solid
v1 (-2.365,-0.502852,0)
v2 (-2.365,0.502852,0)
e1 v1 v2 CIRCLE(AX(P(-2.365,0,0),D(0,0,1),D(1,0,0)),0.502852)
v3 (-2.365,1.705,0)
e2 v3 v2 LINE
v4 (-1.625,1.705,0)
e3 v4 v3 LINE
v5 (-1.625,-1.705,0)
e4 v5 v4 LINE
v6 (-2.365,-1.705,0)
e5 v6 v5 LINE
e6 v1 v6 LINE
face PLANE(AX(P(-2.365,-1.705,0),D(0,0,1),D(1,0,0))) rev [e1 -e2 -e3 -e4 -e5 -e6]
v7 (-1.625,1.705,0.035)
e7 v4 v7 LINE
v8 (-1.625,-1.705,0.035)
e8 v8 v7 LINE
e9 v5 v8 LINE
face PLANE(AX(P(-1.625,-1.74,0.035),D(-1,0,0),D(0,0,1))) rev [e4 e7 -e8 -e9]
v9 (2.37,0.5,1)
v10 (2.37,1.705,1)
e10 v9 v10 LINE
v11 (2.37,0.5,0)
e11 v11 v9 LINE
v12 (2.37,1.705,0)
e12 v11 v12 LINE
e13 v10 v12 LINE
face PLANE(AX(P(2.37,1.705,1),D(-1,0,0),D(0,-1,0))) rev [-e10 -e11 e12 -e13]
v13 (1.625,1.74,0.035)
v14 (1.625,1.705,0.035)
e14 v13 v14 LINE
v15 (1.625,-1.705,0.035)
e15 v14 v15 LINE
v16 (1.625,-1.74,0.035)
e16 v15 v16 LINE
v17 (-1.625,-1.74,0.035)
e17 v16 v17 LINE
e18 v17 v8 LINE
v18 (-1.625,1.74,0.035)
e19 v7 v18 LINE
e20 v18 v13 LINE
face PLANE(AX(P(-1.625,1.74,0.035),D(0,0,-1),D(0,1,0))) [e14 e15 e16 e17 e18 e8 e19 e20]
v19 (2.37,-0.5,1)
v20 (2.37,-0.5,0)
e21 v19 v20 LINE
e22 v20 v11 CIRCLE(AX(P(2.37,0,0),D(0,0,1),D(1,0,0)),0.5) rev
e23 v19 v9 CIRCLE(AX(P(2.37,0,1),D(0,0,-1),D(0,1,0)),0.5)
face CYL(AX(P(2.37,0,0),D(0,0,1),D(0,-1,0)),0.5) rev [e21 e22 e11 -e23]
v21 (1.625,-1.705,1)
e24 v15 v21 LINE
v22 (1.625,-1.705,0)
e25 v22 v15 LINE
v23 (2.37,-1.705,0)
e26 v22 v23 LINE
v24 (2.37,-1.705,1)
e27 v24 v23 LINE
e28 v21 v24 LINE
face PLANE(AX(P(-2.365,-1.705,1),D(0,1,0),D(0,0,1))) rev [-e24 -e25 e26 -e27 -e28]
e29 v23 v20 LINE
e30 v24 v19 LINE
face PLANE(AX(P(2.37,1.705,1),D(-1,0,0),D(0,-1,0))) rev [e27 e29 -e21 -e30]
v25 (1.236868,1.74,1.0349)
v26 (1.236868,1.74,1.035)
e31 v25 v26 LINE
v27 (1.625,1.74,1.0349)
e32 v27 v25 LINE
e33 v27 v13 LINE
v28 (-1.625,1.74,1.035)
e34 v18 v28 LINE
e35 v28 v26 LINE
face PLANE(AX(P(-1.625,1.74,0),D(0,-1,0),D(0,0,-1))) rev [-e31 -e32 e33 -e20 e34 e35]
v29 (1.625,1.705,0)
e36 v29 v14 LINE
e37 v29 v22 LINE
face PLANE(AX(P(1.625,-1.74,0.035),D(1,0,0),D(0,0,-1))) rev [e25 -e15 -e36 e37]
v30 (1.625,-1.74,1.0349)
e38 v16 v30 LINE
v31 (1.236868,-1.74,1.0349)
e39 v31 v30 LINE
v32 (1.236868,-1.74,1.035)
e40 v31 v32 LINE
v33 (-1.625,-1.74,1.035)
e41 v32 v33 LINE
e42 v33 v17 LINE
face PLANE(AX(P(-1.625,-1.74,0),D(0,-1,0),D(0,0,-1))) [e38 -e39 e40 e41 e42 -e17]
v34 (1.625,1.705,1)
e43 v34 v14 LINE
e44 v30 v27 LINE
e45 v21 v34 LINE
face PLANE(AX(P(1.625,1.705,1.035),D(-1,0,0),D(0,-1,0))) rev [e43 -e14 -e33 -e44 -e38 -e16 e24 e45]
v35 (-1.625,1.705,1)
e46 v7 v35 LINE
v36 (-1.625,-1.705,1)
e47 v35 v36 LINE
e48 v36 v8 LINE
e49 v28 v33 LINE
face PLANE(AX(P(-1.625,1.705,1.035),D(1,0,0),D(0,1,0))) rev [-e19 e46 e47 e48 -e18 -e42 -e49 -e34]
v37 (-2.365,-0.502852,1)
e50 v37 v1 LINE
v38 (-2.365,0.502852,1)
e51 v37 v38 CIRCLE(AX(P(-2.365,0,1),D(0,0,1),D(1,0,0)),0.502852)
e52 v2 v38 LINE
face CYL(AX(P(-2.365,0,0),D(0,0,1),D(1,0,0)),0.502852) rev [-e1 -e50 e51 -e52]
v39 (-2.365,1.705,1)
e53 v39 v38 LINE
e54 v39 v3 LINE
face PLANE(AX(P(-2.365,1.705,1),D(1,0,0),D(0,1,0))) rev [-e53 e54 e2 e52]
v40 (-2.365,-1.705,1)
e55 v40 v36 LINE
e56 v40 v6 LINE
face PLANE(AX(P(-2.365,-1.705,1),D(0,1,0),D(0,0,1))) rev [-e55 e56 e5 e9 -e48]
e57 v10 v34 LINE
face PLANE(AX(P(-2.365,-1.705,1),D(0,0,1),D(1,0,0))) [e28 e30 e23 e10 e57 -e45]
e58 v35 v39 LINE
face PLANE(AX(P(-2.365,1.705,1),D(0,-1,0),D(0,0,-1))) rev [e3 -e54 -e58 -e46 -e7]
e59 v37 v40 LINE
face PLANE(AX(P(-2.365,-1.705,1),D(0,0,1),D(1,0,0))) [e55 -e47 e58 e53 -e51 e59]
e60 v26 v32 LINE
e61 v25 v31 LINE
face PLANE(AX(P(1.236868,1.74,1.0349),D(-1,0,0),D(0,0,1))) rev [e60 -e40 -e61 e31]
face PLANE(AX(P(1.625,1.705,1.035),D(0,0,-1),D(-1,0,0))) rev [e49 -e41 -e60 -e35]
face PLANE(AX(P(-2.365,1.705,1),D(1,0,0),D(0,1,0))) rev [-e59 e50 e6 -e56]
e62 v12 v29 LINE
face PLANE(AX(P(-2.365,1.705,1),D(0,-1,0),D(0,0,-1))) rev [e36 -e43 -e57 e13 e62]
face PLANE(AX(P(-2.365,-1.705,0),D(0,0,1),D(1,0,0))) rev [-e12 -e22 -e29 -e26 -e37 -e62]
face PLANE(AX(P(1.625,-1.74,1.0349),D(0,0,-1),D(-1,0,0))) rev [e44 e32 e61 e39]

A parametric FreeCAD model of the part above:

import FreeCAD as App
import Part
import Sketcher
Q = App.Units.Quantity


def add_polygon(sketch, points):
    """Adds a closed chain of lines whose ends are joined by coincident constraints."""
    first, n = sketch.GeometryCount, len(points)
    for a, b in zip(points, points[1:] + points[:1]):
        sketch.addGeometry(Part.LineSegment(App.Vector(*a, 0), App.Vector(*b, 0)), False)
    for i in range(n):
        sketch.addConstraint(Sketcher.Constraint("Coincident", first + i, 2, first + (i + 1) % n, 1))

doc = App.newDocument("Part")
body = doc.addObject("PartDesign::Body", "Body")

# Sketch on XY plane
sketch1 = doc.addObject("Sketcher::SketchObject", "Sketch")
body.addObject(sketch1)
sketch1.AttachmentSupport = (doc.XY_Plane, [""])
sketch1.MapMode = "FlatFace"
add_polygon(sketch1, [(-2.365, 1.705), (-2.365, -1.705), (2.37, -1.705), (2.37, 1.705)])  # lines 0-3
sketch1.addConstraint(Sketcher.Constraint("Vertical", 0))
sketch1.addConstraint(Sketcher.Constraint("Horizontal", 1))
sketch1.addConstraint(Sketcher.Constraint("Vertical", 2))
sketch1.addConstraint(Sketcher.Constraint("Horizontal", 3))
sketch1.addConstraint(Sketcher.Constraint("DistanceY", 0, 2, 0, 1, Q("3.41 mm")))
sketch1.addConstraint(Sketcher.Constraint("DistanceX", 1, 1, 1, 2, Q("4.735 mm")))
sketch1.addConstraint(Sketcher.Constraint("DistanceX", -1, 1, 1, 2, Q("2.37 mm")))
sketch1.addConstraint(Sketcher.Constraint("DistanceY", 0, 2, -1, 1, Q("1.705 mm")))
pad1 = doc.addObject("PartDesign::Pad", "Pad")
body.addObject(pad1)
pad1.Profile = sketch1
pad1.Length = 1

# Sketch on XY plane
sketch2 = doc.addObject("Sketcher::SketchObject", "Sketch001")
body.addObject(sketch2)
sketch2.AttachmentSupport = (doc.XY_Plane, [""])
sketch2.MapMode = "FlatFace"
sketch2.AttachmentOffset = App.Placement(App.Vector(0, 0, 1), App.Rotation())
sketch2.addGeometry(Part.Circle(App.Vector(2.37, 0, 0), App.Vector(0, 0, 1), 0.5), False)
sketch2.addConstraint(Sketcher.Constraint("PointOnObject", 0, 3, -1))
sketch2.addConstraint(Sketcher.Constraint("Diameter", 0, Q("1 mm")))
sketch2.addConstraint(Sketcher.Constraint("DistanceX", -1, 1, 0, 3, Q("2.37 mm")))
pocket1 = doc.addObject("PartDesign::Pocket", "Pocket")
body.addObject(pocket1)
pocket1.Profile = sketch2
pocket1.Length = 1

# Sketch on XY plane
sketch3 = doc.addObject("Sketcher::SketchObject", "Sketch002")
body.addObject(sketch3)
sketch3.AttachmentSupport = (doc.XY_Plane, [""])
sketch3.MapMode = "FlatFace"
sketch3.AttachmentOffset = App.Placement(App.Vector(0, 0, 1), App.Rotation())
sketch3.addGeometry(Part.Circle(App.Vector(-2.365, 0, 0), App.Vector(0, 0, 1), 0.502852), False)
sketch3.addConstraint(Sketcher.Constraint("PointOnObject", 0, 3, -1))
sketch3.addConstraint(Sketcher.Constraint("Diameter", 0, Q("1.005704 mm")))
sketch3.addConstraint(Sketcher.Constraint("DistanceX", 0, 3, -1, 1, Q("2.365 mm")))
pocket2 = doc.addObject("PartDesign::Pocket", "Pocket001")
body.addObject(pocket2)
pocket2.Profile = sketch3
pocket2.Length = 1

# Sketch on XY plane
sketch4 = doc.addObject("Sketcher::SketchObject", "Sketch003")
body.addObject(sketch4)
sketch4.AttachmentSupport = (doc.XY_Plane, [""])
sketch4.MapMode = "FlatFace"
sketch4.AttachmentOffset = App.Placement(App.Vector(0, 0, 1), App.Rotation())
add_polygon(sketch4, [(-1.625, 1.705), (-1.625, -1.705), (1.625, -1.705), (1.625, 1.705)])  # lines 0-3
sketch4.addConstraint(Sketcher.Constraint("Vertical", 0))
sketch4.addConstraint(Sketcher.Constraint("Horizontal", 1))
sketch4.addConstraint(Sketcher.Constraint("Vertical", 2))
sketch4.addConstraint(Sketcher.Constraint("Horizontal", 3))
sketch4.addConstraint(Sketcher.Constraint("Symmetric", 0, 2, 2, 2, -1, 1))
sketch4.addConstraint(Sketcher.Constraint("DistanceX", 1, 1, 1, 2, Q("3.25 mm")))
sketch4.addConstraint(Sketcher.Constraint("DistanceY", 0, 2, 0, 1, Q("3.41 mm")))
pad2 = doc.addObject("PartDesign::Pad", "Pad001")
body.addObject(pad2)
pad2.Profile = sketch4
pad2.Length = 0.035

# Sketch on XZ plane
sketch5 = doc.addObject("Sketcher::SketchObject", "Sketch004")
body.addObject(sketch5)
sketch5.AttachmentSupport = (doc.XZ_Plane, [""])
sketch5.MapMode = "FlatFace"
sketch5.AttachmentOffset = App.Placement(App.Vector(0, 0, -1.705), App.Rotation())
add_polygon(sketch5, [(1.625, 1.035), (1.625, 0), (-1.625, 0), (-1.625, 1.035)])  # lines 0-3
sketch5.addConstraint(Sketcher.Constraint("Vertical", 0))
sketch5.addConstraint(Sketcher.Constraint("Horizontal", 1))
sketch5.addConstraint(Sketcher.Constraint("Vertical", 2))
sketch5.addConstraint(Sketcher.Constraint("Horizontal", 3))
sketch5.addConstraint(Sketcher.Constraint("Symmetric", 0, 2, 1, 2, -1, 1))
sketch5.addConstraint(Sketcher.Constraint("DistanceX", 1, 2, 1, 1, Q("3.25 mm")))
sketch5.addConstraint(Sketcher.Constraint("DistanceY", 0, 2, 0, 1, Q("1.035 mm")))
pad3 = doc.addObject("PartDesign::Pad", "Pad002")
body.addObject(pad3)
pad3.Profile = sketch5
pad3.Length = 0.035
pad3.Reversed = True

# Sketch on XZ plane
sketch6 = doc.addObject("Sketcher::SketchObject", "Sketch005")
body.addObject(sketch6)
sketch6.AttachmentSupport = (doc.XZ_Plane, [""])
sketch6.MapMode = "FlatFace"
sketch6.AttachmentOffset = App.Placement(App.Vector(0, 0, 1.705), App.Rotation())
add_polygon(sketch6, [(-1.625, 1.035), (-1.625, 0), (1.625, 0), (1.625, 1.035)])  # lines 0-3
sketch6.addConstraint(Sketcher.Constraint("Vertical", 0))
sketch6.addConstraint(Sketcher.Constraint("Horizontal", 1))
sketch6.addConstraint(Sketcher.Constraint("Vertical", 2))
sketch6.addConstraint(Sketcher.Constraint("Horizontal", 3))
sketch6.addConstraint(Sketcher.Constraint("Symmetric", 0, 2, 1, 2, -1, 1))
sketch6.addConstraint(Sketcher.Constraint("DistanceX", 1, 1, 1, 2, Q("3.25 mm")))
sketch6.addConstraint(Sketcher.Constraint("DistanceY", 0, 2, 0, 1, Q("1.035 mm")))
pad4 = doc.addObject("PartDesign::Pad", "Pad003")
body.addObject(pad4)
pad4.Profile = sketch6
pad4.Length = 0.035

# Sketch on XY plane
sketch7 = doc.addObject("Sketcher::SketchObject", "Sketch006")
body.addObject(sketch7)
sketch7.AttachmentSupport = (doc.XY_Plane, [""])
sketch7.MapMode = "FlatFace"
add_polygon(sketch7, [(-1.625, -1.74), (-1.625, 1.74), (1.625, 1.74), (1.625, -1.74)])  # lines 0-3
sketch7.addConstraint(Sketcher.Constraint("Vertical", 0))
sketch7.addConstraint(Sketcher.Constraint("Horizontal", 1))
sketch7.addConstraint(Sketcher.Constraint("Vertical", 2))
sketch7.addConstraint(Sketcher.Constraint("Horizontal", 3))
sketch7.addConstraint(Sketcher.Constraint("Symmetric", 0, 2, 2, 2, -1, 1))
sketch7.addConstraint(Sketcher.Constraint("DistanceX", 1, 1, 1, 2, Q("3.25 mm")))
sketch7.addConstraint(Sketcher.Constraint("DistanceY", 0, 1, 0, 2, Q("3.48 mm")))
pocket3 = doc.addObject("PartDesign::Pocket", "Pocket002")
body.addObject(pocket3)
pocket3.Profile = sketch7
pocket3.Length = 0.035
pocket3.Reversed = True

# Sketch on XY plane
sketch8 = doc.addObject("Sketcher::SketchObject", "Sketch007")
body.addObject(sketch8)
sketch8.AttachmentSupport = (doc.XY_Plane, [""])
sketch8.MapMode = "FlatFace"
sketch8.AttachmentOffset = App.Placement(App.Vector(0, 0, 1.035), App.Rotation())
add_polygon(sketch8, [(1.236868, 1.74), (1.236868, -1.74), (1.625, -1.74), (1.625, 1.74)])  # lines 0-3
sketch8.addConstraint(Sketcher.Constraint("Vertical", 0))
sketch8.addConstraint(Sketcher.Constraint("Horizontal", 1))
sketch8.addConstraint(Sketcher.Constraint("Vertical", 2))
sketch8.addConstraint(Sketcher.Constraint("Horizontal", 3))
sketch8.addConstraint(Sketcher.Constraint("DistanceY", 0, 2, 0, 1, Q("3.48 mm")))
sketch8.addConstraint(Sketcher.Constraint("DistanceY", 0, 2, -1, 1, Q("1.74 mm")))
sketch8.addConstraint(Sketcher.Constraint("DistanceX", -1, 1, 1, 2, Q("1.625 mm")))
sketch8.addConstraint(Sketcher.Constraint("DistanceX", 1, 1, 1, 2, Q("0.388132 mm")))
pocket4 = doc.addObject("PartDesign::Pocket", "Pocket003")
body.addObject(pocket4)
pocket4.Profile = sketch8
pocket4.Length = 0.0001

doc.recompute()
